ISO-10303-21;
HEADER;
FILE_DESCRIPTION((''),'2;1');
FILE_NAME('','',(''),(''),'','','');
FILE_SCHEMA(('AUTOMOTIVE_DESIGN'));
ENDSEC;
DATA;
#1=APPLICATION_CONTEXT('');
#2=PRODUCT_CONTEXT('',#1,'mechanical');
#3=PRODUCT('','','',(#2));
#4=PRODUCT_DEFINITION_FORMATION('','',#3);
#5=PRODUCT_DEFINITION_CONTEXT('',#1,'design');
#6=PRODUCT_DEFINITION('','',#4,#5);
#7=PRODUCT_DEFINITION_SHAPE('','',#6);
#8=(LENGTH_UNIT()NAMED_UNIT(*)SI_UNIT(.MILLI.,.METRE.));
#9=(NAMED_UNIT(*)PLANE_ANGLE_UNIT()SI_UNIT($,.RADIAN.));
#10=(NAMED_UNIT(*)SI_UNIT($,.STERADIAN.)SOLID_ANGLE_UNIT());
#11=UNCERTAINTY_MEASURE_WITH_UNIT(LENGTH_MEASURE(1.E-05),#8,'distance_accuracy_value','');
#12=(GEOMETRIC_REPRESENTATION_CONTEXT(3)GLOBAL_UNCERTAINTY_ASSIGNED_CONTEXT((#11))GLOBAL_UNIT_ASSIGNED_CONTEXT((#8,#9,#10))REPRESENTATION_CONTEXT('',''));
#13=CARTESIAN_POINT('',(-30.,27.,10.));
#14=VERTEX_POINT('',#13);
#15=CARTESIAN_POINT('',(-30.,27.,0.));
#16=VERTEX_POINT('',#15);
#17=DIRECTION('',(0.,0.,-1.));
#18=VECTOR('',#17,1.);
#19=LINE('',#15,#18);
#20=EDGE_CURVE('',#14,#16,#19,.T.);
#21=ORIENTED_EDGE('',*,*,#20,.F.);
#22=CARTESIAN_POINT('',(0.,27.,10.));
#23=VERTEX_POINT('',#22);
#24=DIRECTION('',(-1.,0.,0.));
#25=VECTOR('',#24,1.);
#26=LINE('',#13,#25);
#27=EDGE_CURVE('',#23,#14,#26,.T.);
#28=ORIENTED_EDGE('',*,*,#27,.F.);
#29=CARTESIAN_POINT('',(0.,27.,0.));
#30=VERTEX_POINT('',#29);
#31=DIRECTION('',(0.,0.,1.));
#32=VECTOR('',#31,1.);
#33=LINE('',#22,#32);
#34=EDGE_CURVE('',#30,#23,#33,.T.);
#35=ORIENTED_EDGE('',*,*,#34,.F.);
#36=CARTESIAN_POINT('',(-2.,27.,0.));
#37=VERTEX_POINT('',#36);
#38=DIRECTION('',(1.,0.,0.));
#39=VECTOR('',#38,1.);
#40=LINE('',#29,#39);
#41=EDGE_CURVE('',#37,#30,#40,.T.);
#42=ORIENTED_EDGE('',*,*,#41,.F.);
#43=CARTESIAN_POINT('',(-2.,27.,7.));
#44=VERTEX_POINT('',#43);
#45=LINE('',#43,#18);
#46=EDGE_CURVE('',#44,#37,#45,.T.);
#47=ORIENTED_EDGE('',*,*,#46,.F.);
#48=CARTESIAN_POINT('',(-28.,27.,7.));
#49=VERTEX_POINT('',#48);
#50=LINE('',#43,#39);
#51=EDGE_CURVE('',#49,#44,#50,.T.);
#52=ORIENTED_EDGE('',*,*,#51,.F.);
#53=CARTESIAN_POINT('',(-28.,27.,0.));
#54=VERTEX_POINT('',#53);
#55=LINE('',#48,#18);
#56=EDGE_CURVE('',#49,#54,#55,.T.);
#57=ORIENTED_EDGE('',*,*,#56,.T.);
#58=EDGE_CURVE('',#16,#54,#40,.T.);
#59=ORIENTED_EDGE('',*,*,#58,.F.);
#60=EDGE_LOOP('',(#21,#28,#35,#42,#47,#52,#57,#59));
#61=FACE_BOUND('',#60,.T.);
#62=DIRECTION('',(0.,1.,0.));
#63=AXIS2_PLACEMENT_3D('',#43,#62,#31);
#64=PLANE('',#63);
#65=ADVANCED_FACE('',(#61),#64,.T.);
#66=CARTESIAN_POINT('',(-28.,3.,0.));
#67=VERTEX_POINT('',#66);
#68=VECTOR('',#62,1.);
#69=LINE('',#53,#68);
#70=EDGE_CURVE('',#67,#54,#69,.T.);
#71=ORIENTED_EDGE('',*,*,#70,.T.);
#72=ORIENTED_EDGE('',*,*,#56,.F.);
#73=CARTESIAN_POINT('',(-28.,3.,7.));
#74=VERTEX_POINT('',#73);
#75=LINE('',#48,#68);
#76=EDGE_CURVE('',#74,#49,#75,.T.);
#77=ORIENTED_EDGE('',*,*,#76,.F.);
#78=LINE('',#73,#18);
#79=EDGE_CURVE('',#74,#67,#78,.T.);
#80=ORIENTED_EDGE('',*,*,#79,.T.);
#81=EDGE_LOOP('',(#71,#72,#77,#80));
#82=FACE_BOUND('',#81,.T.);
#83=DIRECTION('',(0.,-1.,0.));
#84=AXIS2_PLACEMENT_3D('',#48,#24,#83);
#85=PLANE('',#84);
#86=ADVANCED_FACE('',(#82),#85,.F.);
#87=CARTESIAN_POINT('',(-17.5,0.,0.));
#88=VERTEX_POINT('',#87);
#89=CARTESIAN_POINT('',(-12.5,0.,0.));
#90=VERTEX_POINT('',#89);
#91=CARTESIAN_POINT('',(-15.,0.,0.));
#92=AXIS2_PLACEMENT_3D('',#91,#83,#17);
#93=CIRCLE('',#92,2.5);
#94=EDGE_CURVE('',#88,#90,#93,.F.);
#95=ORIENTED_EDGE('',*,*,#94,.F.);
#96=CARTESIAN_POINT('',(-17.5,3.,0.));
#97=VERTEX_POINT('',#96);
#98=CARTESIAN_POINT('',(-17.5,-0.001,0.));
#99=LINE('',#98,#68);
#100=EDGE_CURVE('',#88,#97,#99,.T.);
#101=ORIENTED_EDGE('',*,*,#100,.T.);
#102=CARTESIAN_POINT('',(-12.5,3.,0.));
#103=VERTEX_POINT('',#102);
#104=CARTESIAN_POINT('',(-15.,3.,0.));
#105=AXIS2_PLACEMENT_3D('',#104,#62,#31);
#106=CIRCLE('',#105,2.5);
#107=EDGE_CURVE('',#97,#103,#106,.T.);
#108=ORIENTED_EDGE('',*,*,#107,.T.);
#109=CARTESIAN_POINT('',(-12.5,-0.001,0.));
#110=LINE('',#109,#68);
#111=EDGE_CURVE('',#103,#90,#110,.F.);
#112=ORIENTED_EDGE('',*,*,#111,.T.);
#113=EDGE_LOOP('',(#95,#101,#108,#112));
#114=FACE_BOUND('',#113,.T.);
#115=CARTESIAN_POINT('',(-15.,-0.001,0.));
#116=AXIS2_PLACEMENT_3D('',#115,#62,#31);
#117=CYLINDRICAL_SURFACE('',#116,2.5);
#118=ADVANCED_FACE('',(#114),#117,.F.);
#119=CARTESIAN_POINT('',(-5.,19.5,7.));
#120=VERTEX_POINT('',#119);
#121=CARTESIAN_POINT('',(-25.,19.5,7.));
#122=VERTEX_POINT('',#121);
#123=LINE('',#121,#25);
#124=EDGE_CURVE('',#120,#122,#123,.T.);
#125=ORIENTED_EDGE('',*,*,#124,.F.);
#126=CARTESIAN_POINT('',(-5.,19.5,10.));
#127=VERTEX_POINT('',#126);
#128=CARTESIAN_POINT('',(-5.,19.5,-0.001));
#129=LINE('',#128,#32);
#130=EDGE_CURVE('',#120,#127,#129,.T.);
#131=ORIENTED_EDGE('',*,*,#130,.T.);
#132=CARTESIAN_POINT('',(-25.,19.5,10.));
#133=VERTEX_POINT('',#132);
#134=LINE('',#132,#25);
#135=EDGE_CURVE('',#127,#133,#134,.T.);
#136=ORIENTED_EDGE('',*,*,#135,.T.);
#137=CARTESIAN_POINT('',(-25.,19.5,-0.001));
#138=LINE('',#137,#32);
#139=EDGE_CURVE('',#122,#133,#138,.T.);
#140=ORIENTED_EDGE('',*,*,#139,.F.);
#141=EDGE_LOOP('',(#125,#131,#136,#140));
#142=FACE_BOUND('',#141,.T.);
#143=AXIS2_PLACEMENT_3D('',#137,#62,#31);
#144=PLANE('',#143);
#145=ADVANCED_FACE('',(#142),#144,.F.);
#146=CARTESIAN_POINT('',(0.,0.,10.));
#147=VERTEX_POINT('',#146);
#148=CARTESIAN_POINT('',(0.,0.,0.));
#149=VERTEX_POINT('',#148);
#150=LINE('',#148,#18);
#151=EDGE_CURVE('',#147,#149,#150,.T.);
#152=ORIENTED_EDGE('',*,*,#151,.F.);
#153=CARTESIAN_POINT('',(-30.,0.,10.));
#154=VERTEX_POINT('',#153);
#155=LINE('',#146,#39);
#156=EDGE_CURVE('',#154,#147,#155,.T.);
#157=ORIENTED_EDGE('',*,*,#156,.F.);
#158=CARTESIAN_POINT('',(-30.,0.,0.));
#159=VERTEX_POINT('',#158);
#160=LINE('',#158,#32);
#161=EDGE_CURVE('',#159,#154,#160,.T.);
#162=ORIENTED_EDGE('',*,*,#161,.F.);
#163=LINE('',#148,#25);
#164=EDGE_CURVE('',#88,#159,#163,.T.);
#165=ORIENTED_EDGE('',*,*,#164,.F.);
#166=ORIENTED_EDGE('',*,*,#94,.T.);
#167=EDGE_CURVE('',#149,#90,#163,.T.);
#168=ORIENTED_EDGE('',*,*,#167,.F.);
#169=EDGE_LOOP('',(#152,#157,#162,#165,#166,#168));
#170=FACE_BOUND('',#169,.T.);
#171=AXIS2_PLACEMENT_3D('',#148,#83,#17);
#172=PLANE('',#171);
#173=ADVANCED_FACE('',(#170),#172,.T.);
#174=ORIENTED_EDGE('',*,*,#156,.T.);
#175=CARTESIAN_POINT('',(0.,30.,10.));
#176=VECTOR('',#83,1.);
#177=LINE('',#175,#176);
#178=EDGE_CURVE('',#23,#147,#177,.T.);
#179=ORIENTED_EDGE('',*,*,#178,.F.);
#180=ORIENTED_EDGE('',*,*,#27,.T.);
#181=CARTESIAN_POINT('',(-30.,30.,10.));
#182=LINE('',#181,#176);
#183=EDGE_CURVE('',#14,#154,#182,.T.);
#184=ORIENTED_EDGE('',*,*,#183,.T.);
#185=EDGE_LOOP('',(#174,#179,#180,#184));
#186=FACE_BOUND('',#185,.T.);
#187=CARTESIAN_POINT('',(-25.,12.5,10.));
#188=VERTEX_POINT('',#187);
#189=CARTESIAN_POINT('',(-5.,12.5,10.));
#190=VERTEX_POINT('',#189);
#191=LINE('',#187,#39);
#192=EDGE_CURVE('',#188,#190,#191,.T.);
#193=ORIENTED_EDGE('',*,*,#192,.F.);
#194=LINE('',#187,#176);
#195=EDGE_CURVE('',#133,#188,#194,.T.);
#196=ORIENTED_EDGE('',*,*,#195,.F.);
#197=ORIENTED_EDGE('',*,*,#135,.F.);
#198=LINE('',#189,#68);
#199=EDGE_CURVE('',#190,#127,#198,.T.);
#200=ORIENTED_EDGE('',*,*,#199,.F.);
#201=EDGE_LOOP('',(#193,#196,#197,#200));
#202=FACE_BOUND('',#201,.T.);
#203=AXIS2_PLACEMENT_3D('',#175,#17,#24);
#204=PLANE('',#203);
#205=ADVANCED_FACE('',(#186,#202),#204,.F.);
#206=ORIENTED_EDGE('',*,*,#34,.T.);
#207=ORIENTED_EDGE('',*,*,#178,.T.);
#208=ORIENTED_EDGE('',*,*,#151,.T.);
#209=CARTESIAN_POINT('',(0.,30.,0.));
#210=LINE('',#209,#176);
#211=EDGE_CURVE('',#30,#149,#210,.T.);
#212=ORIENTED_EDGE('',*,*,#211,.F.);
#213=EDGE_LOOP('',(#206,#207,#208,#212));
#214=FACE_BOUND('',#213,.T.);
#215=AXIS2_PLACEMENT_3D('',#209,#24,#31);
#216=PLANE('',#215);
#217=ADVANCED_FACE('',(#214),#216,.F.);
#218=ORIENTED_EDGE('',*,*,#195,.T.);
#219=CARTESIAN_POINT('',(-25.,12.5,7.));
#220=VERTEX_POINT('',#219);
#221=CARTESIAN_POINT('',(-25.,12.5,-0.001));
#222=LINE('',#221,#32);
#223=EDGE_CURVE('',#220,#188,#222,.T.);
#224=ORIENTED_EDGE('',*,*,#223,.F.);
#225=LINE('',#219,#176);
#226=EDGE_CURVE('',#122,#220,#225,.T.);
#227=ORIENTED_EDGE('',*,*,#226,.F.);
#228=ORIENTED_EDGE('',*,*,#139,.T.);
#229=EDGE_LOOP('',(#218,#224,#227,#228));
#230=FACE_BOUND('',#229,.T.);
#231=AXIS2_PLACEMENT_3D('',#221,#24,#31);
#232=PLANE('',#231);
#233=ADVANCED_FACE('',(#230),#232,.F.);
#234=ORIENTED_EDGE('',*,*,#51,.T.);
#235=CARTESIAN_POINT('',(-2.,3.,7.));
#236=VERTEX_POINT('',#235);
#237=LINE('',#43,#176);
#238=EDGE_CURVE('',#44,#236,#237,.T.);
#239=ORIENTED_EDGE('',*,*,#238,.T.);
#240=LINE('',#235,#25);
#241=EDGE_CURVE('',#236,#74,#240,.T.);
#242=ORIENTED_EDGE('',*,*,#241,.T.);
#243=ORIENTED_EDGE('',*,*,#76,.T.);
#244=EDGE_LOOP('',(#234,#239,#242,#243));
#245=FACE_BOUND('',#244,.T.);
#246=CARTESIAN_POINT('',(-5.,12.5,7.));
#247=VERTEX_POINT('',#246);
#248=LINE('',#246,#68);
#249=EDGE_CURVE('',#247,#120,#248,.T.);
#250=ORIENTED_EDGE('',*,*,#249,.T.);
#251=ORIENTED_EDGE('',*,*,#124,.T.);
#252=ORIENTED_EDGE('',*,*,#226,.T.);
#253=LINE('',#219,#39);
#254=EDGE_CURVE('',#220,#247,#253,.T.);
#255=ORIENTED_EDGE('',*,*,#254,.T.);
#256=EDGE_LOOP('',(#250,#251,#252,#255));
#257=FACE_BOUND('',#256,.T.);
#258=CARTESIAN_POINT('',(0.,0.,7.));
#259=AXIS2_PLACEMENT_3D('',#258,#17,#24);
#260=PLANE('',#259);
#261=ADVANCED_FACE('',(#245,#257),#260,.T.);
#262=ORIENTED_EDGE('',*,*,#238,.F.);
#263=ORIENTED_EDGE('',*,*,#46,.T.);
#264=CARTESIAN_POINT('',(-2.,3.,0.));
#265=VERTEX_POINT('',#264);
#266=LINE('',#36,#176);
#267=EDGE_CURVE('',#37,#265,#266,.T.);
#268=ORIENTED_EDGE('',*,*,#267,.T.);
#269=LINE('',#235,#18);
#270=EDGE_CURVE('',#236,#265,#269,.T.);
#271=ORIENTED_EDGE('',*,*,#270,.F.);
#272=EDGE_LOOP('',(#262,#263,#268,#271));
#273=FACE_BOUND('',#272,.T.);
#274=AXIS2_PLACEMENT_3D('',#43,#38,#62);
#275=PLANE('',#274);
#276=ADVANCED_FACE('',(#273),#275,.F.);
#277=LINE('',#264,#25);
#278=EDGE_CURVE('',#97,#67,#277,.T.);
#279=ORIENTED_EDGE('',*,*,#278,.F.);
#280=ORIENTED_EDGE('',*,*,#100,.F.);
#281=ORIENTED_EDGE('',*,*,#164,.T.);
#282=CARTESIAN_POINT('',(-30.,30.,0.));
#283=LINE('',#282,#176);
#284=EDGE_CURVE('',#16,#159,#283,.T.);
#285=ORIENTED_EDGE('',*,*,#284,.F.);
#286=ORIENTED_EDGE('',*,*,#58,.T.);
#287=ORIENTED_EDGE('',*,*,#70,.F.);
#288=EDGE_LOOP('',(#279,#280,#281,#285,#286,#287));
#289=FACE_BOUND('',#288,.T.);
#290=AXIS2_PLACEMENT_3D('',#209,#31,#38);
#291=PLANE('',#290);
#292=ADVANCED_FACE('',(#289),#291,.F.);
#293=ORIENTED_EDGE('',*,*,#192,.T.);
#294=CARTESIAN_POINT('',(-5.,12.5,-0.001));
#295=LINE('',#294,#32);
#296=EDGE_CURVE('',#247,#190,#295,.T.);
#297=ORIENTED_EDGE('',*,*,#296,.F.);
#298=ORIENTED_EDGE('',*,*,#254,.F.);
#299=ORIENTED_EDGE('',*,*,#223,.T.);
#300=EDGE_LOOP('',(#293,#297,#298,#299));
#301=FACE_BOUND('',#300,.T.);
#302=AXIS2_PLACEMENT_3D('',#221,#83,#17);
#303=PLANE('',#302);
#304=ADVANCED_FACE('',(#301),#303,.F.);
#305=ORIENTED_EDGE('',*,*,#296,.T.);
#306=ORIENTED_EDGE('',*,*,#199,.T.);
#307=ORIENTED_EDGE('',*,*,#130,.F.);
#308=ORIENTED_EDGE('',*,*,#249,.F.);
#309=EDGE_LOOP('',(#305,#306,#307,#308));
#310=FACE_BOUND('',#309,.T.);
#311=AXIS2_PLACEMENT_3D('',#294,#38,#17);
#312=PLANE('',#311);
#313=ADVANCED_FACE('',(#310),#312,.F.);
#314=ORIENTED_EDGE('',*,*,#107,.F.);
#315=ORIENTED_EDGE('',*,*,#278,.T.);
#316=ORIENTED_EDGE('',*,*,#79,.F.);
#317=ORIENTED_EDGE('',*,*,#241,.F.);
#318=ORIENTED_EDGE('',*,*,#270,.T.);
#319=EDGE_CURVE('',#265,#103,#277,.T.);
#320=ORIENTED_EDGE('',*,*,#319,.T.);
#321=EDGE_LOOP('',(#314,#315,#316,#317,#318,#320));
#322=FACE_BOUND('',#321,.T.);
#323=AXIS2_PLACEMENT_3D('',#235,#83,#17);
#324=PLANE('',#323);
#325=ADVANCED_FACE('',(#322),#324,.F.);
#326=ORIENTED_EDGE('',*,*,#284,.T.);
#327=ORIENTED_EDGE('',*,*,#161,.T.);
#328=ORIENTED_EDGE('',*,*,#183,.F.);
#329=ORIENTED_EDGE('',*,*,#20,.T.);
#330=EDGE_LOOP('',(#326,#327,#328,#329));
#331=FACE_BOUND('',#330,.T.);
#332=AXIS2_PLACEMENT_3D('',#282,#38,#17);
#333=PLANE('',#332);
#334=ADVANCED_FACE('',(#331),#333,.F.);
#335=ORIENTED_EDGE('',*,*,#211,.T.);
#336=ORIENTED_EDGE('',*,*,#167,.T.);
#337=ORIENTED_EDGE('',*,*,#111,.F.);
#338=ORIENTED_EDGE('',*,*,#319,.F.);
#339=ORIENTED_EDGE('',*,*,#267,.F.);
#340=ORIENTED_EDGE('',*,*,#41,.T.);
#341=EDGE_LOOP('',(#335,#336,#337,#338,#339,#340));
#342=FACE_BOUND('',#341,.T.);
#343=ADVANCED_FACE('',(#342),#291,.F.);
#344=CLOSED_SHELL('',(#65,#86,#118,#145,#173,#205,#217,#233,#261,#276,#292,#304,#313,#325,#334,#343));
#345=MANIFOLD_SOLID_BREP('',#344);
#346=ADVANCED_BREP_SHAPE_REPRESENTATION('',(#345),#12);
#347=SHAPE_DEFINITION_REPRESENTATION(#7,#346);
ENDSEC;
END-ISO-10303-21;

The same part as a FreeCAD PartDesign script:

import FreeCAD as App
import Part
import Sketcher

V = App.Vector


def add_polygon(sketch, points):
    """Adds a closed chain of lines whose ends are joined by coincident constraints."""
    first, n = sketch.GeometryCount, len(points)
    for a, b in zip(points, points[1:] + points[:1]):
        sketch.addGeometry(Part.LineSegment(App.Vector(*a, 0), App.Vector(*b, 0)), False)
    for i in range(n):
        sketch.addConstraint(Sketcher.Constraint("Coincident", first + i, 2, first + (i + 1) % n, 1))

doc = App.newDocument("Part")
params = doc.addObject("Spreadsheet::Sheet", "Params")
for row, (alias, value) in enumerate([
    ("sketch1_width", "30 mm"),
    ("sketch1_height", "10 mm"),
    ("pad1_length", "30 mm"),
    ("sketch2_width", "20 mm"),
    ("sketch2_height", "7 mm"),
    ("sketch3_width", "26 mm"),
    ("sketch3_height", "24 mm"),
    ("pocket2_length", "7 mm"),
    ("sketch4_diameter", "5 mm"),
    ("sketch5_width", "30 mm"),
    ("sketch5_height", "10 mm"),
    ("pocket4_length", "3 mm"),
], start=1):
    params.set(f"A{row}", alias)
    params.set(f"B{row}", "=" + value)
    params.setAlias(f"B{row}", alias)

body = doc.addObject("PartDesign::Body", "Body")

# Sketch on XZ plane
sketch1 = body.newObject("Sketcher::SketchObject", "Sketch")
sketch1.AttachmentSupport = (doc.getObject("XZ_Plane"), [""])
sketch1.MapMode = "FlatFace"
add_polygon(sketch1, [(-30, 0), (-30, 10), (0, 10), (0, 0)])  # lines 0-3
sketch1.addConstraint([
    Sketcher.Constraint("Vertical", 0),
    Sketcher.Constraint("Horizontal", 1),
    Sketcher.Constraint("Vertical", 2),
    Sketcher.Constraint("Horizontal", 3),
    Sketcher.Constraint("Coincident", 2, 2, -1, 1),
    Sketcher.Constraint("DistanceX", 1, 1, 1, 2, 30.0),
    Sketcher.Constraint("DistanceY", 0, 1, 0, 2, 10.0),
])
sketch1.setExpression("Constraints[9]", "Params.sketch1_width")
sketch1.setExpression("Constraints[10]", "Params.sketch1_height")
pad1 = body.newObject("PartDesign::Pad", "Pad")
pad1.Profile = sketch1
pad1.setExpression("Length", "Params.pad1_length")
pad1.Reversed = True

# Sketch on XY plane
sketch2 = body.newObject("Sketcher::SketchObject", "Sketch001")
sketch2.AttachmentSupport = (doc.getObject("XY_Plane"), [""])
sketch2.MapMode = "FlatFace"
sketch2.AttachmentOffset = App.Placement(V(0, 0, 10), App.Rotation())
add_polygon(sketch2, [(-25, 19.5), (-25, 12.5), (-5, 12.5), (-5, 19.5)])  # lines 0-3
sketch2.addConstraint([
    Sketcher.Constraint("Vertical", 0),
    Sketcher.Constraint("Horizontal", 1),
    Sketcher.Constraint("Vertical", 2),
    Sketcher.Constraint("Horizontal", 3),
    Sketcher.Constraint("DistanceX", 1, 1, 1, 2, 20.0),
    Sketcher.Constraint("DistanceY", 0, 2, 0, 1, 7.0),
    Sketcher.Constraint("DistanceX", 0, 2, -1, 1, 25.0),
    Sketcher.Constraint("DistanceY", -1, 1, 0, 2, 12.5),
])
sketch2.setExpression("Constraints[8]", "Params.sketch2_width")
sketch2.setExpression("Constraints[9]", "Params.sketch2_height")
pocket1 = body.newObject("PartDesign::Pocket", "Pocket")
pocket1.Profile = sketch2
pocket1.Type = "UpToFirst"

# Sketch on XY plane
sketch3 = body.newObject("Sketcher::SketchObject", "Sketch002")
sketch3.AttachmentSupport = (doc.getObject("XY_Plane"), [""])
sketch3.MapMode = "FlatFace"
add_polygon(sketch3, [(-2, 27), (-2, 3), (-28, 3), (-28, 27)])  # lines 0-3
sketch3.addConstraint([
    Sketcher.Constraint("Vertical", 0),
    Sketcher.Constraint("Horizontal", 1),
    Sketcher.Constraint("Vertical", 2),
    Sketcher.Constraint("Horizontal", 3),
    Sketcher.Constraint("DistanceX", 1, 2, 1, 1, 26.0),
    Sketcher.Constraint("DistanceY", 0, 2, 0, 1, 24.0),
    Sketcher.Constraint("DistanceX", 0, 2, -1, 1, 2.0),
    Sketcher.Constraint("DistanceY", -1, 1, 0, 2, 3.0),
])
sketch3.setExpression("Constraints[8]", "Params.sketch3_width")
sketch3.setExpression("Constraints[9]", "Params.sketch3_height")
pocket2 = body.newObject("PartDesign::Pocket", "Pocket001")
pocket2.Profile = sketch3
pocket2.setExpression("Length", "Params.pocket2_length")
pocket2.Reversed = True

# Sketch on XZ plane
sketch4 = body.newObject("Sketcher::SketchObject", "Sketch003")
sketch4.AttachmentSupport = (doc.getObject("XZ_Plane"), [""])
sketch4.MapMode = "FlatFace"
sketch4.AttachmentOffset = App.Placement(V(0, 0, -3), App.Rotation())
sketch4.addGeometry(Part.Circle(V(-15, 0, 0), V(0, 0, 1), 2.5), False)
sketch4.addConstraint([
    Sketcher.Constraint("PointOnObject", 0, 3, -1),
    Sketcher.Constraint("Diameter", 0, 5.0),
    Sketcher.Constraint("DistanceX", 0, 3, -1, 1, 15.0),
])
sketch4.setExpression("Constraints[1]", "Params.sketch4_diameter")
pocket3 = body.newObject("PartDesign::Pocket", "Pocket002")
pocket3.Profile = sketch4
pocket3.Type = "UpToFirst"
pocket3.Reversed = True

# Sketch on XZ plane
sketch5 = body.newObject("Sketcher::SketchObject", "Sketch004")
sketch5.AttachmentSupport = (doc.getObject("XZ_Plane"), [""])
sketch5.MapMode = "FlatFace"
sketch5.AttachmentOffset = App.Placement(V(0, 0, -30), App.Rotation())
add_polygon(sketch5, [(-30, 0), (-30, 10), (0, 10), (0, 0)])  # lines 0-3
sketch5.addConstraint([
    Sketcher.Constraint("Vertical", 0),
    Sketcher.Constraint("Horizontal", 1),
    Sketcher.Constraint("Vertical", 2),
    Sketcher.Constraint("Horizontal", 3),
    Sketcher.Constraint("Coincident", 2, 2, -1, 1),
    Sketcher.Constraint("DistanceX", 1, 1, 1, 2, 30.0),
    Sketcher.Constraint("DistanceY", 0, 1, 0, 2, 10.0),
])
sketch5.setExpression("Constraints[9]", "Params.sketch5_width")
sketch5.setExpression("Constraints[10]", "Params.sketch5_height")
pocket4 = body.newObject("PartDesign::Pocket", "Pocket003")
pocket4.Profile = sketch5
pocket4.setExpression("Length", "Params.pocket4_length")
pocket4.Reversed = True

doc.recompute()
